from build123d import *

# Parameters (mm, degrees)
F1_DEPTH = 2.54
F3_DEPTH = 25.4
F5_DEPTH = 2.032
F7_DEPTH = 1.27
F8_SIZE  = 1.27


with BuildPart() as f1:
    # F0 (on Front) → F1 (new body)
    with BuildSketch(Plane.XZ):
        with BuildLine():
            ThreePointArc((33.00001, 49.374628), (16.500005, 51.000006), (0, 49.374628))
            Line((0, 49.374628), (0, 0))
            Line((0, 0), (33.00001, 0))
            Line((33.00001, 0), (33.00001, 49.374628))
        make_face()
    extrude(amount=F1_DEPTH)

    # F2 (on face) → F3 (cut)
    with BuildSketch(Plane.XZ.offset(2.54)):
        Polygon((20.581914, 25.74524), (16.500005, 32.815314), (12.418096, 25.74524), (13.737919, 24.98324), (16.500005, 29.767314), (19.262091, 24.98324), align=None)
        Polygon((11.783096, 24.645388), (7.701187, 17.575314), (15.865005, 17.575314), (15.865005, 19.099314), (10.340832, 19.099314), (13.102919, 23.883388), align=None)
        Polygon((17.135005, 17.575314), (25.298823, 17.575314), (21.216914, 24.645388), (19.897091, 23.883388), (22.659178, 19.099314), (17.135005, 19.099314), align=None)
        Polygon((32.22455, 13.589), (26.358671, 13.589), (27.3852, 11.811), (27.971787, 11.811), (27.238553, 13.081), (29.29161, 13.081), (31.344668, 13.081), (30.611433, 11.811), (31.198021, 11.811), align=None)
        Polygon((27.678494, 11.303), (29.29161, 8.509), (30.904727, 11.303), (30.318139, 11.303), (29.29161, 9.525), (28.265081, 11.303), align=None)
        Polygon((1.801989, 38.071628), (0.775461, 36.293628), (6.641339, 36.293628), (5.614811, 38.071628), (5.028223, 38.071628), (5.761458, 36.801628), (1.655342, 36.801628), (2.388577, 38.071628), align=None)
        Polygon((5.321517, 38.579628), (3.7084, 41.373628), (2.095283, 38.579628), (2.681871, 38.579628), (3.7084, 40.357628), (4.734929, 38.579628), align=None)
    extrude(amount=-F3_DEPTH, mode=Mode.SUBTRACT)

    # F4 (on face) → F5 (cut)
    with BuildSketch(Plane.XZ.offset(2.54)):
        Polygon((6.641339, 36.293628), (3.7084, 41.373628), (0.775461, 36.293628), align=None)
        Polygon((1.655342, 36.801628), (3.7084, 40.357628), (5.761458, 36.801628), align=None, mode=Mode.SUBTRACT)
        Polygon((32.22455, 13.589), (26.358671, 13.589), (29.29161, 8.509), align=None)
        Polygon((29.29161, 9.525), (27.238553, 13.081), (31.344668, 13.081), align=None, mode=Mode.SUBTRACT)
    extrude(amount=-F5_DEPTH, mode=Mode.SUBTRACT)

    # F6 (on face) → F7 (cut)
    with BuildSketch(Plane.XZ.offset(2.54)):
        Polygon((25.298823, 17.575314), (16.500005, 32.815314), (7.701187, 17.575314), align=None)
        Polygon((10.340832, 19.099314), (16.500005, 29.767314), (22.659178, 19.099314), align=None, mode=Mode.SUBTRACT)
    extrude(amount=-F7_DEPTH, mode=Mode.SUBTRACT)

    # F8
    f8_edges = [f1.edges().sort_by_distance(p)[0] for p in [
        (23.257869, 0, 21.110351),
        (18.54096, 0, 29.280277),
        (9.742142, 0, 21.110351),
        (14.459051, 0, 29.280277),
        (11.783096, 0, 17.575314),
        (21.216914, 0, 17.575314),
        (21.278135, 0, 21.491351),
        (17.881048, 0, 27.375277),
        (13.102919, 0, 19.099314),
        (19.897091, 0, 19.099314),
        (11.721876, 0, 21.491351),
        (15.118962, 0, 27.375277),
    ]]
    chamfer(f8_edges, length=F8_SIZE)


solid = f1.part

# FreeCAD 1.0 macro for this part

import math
import FreeCAD as App
import Part
import Sketcher

V = App.Vector
Q = App.Units.Quantity


def edges_at(feature, points):
    """Names of the edges that pass closest to the given points."""
    edges = feature.Shape.Edges
    near = lambda p: min(range(len(edges)), key=lambda i: edges[i].distToShape(Part.Vertex(*p))[0])
    return sorted({f"Edge{near(p) + 1}" for p in points})


def add_polygon(sketch, points):
    """Adds a closed chain of lines whose ends are joined by coincident constraints."""
    first, n = sketch.GeometryCount, len(points)
    for a, b in zip(points, points[1:] + points[:1]):
        sketch.addGeometry(Part.LineSegment(App.Vector(*a, 0), App.Vector(*b, 0)), False)
    for i in range(n):
        sketch.addConstraint(Sketcher.Constraint("Coincident", first + i, 2, first + (i + 1) % n, 1))

doc = App.newDocument("Part")
body = doc.addObject("PartDesign::Body", "Body")

# Sketch on XZ plane
sketch1 = body.newObject("Sketcher::SketchObject", "Sketch")
sketch1.AttachmentSupport = (doc.getObject("XZ_Plane"), [""])
sketch1.MapMode = "FlatFace"
sketch1.addGeometry(Part.ArcOfCircle(Part.Circle(V(17, -34, 0), V(0, 0, 1), 85), math.radians(79), math.radians(101)), False)
sketch1.addGeometry(Part.LineSegment(V(0, 49, 0), V(0, 0, 0)), False)
sketch1.addGeometry(Part.LineSegment(V(0, 0, 0), V(33, 0, 0)), False)
sketch1.addGeometry(Part.LineSegment(V(33, 0, 0), V(33, 49, 0)), False)
sketch1.addConstraint(Sketcher.Constraint("Coincident", 0, 2, 1, 1))
sketch1.addConstraint(Sketcher.Constraint("Coincident", 1, 2, 2, 1))
sketch1.addConstraint(Sketcher.Constraint("Coincident", 2, 2, 3, 1))
sketch1.addConstraint(Sketcher.Constraint("Coincident", 3, 2, 0, 1))
sketch1.addConstraint(Sketcher.Constraint("Vertical", 1))
sketch1.addConstraint(Sketcher.Constraint("Horizontal", 2))
sketch1.addConstraint(Sketcher.Constraint("Vertical", 3))
sketch1.addConstraint(Sketcher.Constraint("Coincident", 1, 2, -1, 1))
sketch1.addConstraint(Sketcher.Constraint("Horizontal", 0, 2, 3, 2))
sketch1.addConstraint(Sketcher.Constraint("Radius", 0, 84.562489))
sketch1.addConstraint(Sketcher.Constraint("DistanceX", 2, 1, 2, 2, 33.00001))
sketch1.addConstraint(Sketcher.Constraint("DistanceY", 1, 2, 1, 1, 49.374628))
pad1 = body.newObject("PartDesign::Pad", "Pad")
pad1.Profile = sketch1
pad1.Length = Q("0.1 in")

# Sketch on XZ plane
sketch2 = body.newObject("Sketcher::SketchObject", "Sketch001")
sketch2.AttachmentSupport = (doc.getObject("XZ_Plane"), [""])
sketch2.MapMode = "FlatFace"
sketch2.AttachmentOffset = App.Placement(V(0, 0, 0.1 * 25.4), App.Rotation())
add_polygon(sketch2, [(20.6, 25.7), (16.5, 32.8), (12.4, 25.7), (13.7, 25), (16.5, 29.8), (19.3, 25)])  # lines 0-5
add_polygon(sketch2, [(11.8, 24.6), (7.7, 17.6), (15.9, 17.6), (15.9, 19.1), (10.3, 19.1), (13.1, 23.9)])  # lines 6-11
add_polygon(sketch2, [(17.1, 17.6), (25.3, 17.6), (21.2, 24.6), (19.9, 23.9), (22.7, 19.1), (17.1, 19.1)])  # lines 12-17
add_polygon(sketch2, [(32.2, 13.6), (26.4, 13.6), (27.4, 11.8), (28, 11.8), (27.2, 13.1), (31.3, 13.1), (30.6, 11.8), (31.2, 11.8)])  # lines 18-25
add_polygon(sketch2, [(27.7, 11.3), (29.3, 8.5), (30.9, 11.3), (30.3, 11.3), (29.3, 9.5), (28.3, 11.3)])  # lines 26-31
add_polygon(sketch2, [(1.8, 38.1), (0.8, 36.3), (6.6, 36.3), (5.6, 38.1), (5, 38.1), (5.8, 36.8), (1.7, 36.8), (2.4, 38.1)])  # lines 32-39
add_polygon(sketch2, [(5.3, 38.6), (3.7, 41.4), (2.1, 38.6), (2.7, 38.6), (3.7, 40.4), (4.7, 38.6)])  # lines 40-45
sketch2.addConstraint(Sketcher.Constraint("Horizontal", 7))
sketch2.addConstraint(Sketcher.Constraint("Vertical", 8))
sketch2.addConstraint(Sketcher.Constraint("Horizontal", 9))
sketch2.addConstraint(Sketcher.Constraint("Horizontal", 12))
sketch2.addConstraint(Sketcher.Constraint("Horizontal", 16))
sketch2.addConstraint(Sketcher.Constraint("Vertical", 17))
sketch2.addConstraint(Sketcher.Constraint("Horizontal", 18))
sketch2.addConstraint(Sketcher.Constraint("Horizontal", 20))
sketch2.addConstraint(Sketcher.Constraint("Horizontal", 22))
sketch2.addConstraint(Sketcher.Constraint("Horizontal", 24))
sketch2.addConstraint(Sketcher.Constraint("Horizontal", 28))
sketch2.addConstraint(Sketcher.Constraint("Horizontal", 31))
sketch2.addConstraint(Sketcher.Constraint("Horizontal", 33))
sketch2.addConstraint(Sketcher.Constraint("Horizontal", 35))
sketch2.addConstraint(Sketcher.Constraint("Horizontal", 37))
sketch2.addConstraint(Sketcher.Constraint("Horizontal", 39))
sketch2.addConstraint(Sketcher.Constraint("Horizontal", 42))
sketch2.addConstraint(Sketcher.Constraint("Horizontal", 45))
sketch2.addConstraint(Sketcher.Constraint("Perpendicular", 1, 2))
sketch2.addConstraint(Sketcher.Constraint("Perpendicular", 2, 3))
sketch2.addConstraint(Sketcher.Constraint("Parallel", 0, 4))
sketch2.addConstraint(Sketcher.Constraint("Perpendicular", 4, 5))
sketch2.addConstraint(Sketcher.Constraint("Parallel", 3, 6))
sketch2.addConstraint(Sketcher.Constraint("Parallel", 6, 10))
sketch2.addConstraint(Sketcher.Constraint("Perpendicular", 10, 11))
sketch2.addConstraint(Sketcher.Constraint("Perpendicular", 5, 13))
sketch2.addConstraint(Sketcher.Constraint("Perpendicular", 13, 14))
sketch2.addConstraint(Sketcher.Constraint("Perpendicular", 14, 15))
sketch2.addConstraint(Sketcher.Constraint("Parallel", 15, 19))
sketch2.addConstraint(Sketcher.Constraint("Parallel", 19, 21))
sketch2.addConstraint(Sketcher.Constraint("Perpendicular", 11, 23))
sketch2.addConstraint(Sketcher.Constraint("Parallel", 23, 25))
sketch2.addConstraint(Sketcher.Constraint("Parallel", 21, 26))
sketch2.addConstraint(Sketcher.Constraint("Parallel", 25, 27))
sketch2.addConstraint(Sketcher.Constraint("Parallel", 27, 29))
sketch2.addConstraint(Sketcher.Constraint("Parallel", 26, 30))
sketch2.addConstraint(Sketcher.Constraint("Parallel", 29, 32))
sketch2.addConstraint(Sketcher.Constraint("Parallel", 30, 34))
sketch2.addConstraint(Sketcher.Constraint("Parallel", 34, 36))
sketch2.addConstraint(Sketcher.Constraint("Parallel", 32, 38))
sketch2.addConstraint(Sketcher.Constraint("Parallel", 36, 40))
sketch2.addConstraint(Sketcher.Constraint("Parallel", 38, 41))
sketch2.addConstraint(Sketcher.Constraint("Parallel", 41, 43))
sketch2.addConstraint(Sketcher.Constraint("Parallel", 40, 44))
sketch2.addConstraint(Sketcher.Constraint("Horizontal", 2, 2, 4, 2))
sketch2.addConstraint(Sketcher.Constraint("Horizontal", 1, 2, 5, 2))
sketch2.addConstraint(Sketcher.Constraint("Horizontal", 7, 2, 12, 2))
sketch2.addConstraint(Sketcher.Constraint("Horizontal", 11, 2, 13, 2))
sketch2.addConstraint(Sketcher.Constraint("Horizontal", 10, 2, 14, 2))
sketch2.addConstraint(Sketcher.Constraint("Horizontal", 9, 2, 15, 2))
sketch2.addConstraint(Sketcher.Constraint("Horizontal", 20, 2, 23, 2))
sketch2.addConstraint(Sketcher.Constraint("Horizontal", 28, 2, 30, 2))
sketch2.addConstraint(Sketcher.Constraint("Horizontal", 35, 2, 38, 2))
sketch2.addConstraint(Sketcher.Constraint("Horizontal", 42, 2, 44, 2))
sketch2.addConstraint(Sketcher.Constraint("Vertical", 0, 2, 3, 2))
sketch2.addConstraint(Sketcher.Constraint("Vertical", 26, 2, 29, 2))
sketch2.addConstraint(Sketcher.Constraint("Vertical", 40, 2, 43, 2))
sketch2.addConstraint(Sketcher.Constraint("Equal", 7, 12))
sketch2.addConstraint(Sketcher.Constraint("Equal", 20, 24))
sketch2.addConstraint(Sketcher.Constraint("Equal", 24, 28))
sketch2.addConstraint(Sketcher.Constraint("Equal", 18, 33))
sketch2.addConstraint(Sketcher.Constraint("Equal", 31, 35))
sketch2.addConstraint(Sketcher.Constraint("Equal", 22, 37))
sketch2.addConstraint(Sketcher.Constraint("Equal", 35, 39))
sketch2.addConstraint(Sketcher.Constraint("Equal", 39, 42))
sketch2.addConstraint(Sketcher.Constraint("Equal", 1, 6))
sketch2.addConstraint(Sketcher.Constraint("Equal", 4, 10))
sketch2.addConstraint(Sketcher.Constraint("Equal", 5, 11))
sketch2.addConstraint(Sketcher.Constraint("Equal", 25, 29))
sketch2.addConstraint(Sketcher.Constraint("Equal", 30, 32))
sketch2.addConstraint(Sketcher.Constraint("Equal", 27, 40))
sketch2.addConstraint(Sketcher.Constraint("Angle", 0, Q("119.999999 deg")))
sketch2.addConstraint(Sketcher.Constraint("DistanceY", 8, 1, 8, 2, Q("0.06 in")))
sketch2.addConstraint(Sketcher.Constraint("DistanceY", 6, 2, 3, 2, Q("0.48 in")))
sketch2.addConstraint(Sketcher.Constraint("DistanceX", 8, 2, 16, 2, Q("0.05 in")))
sketch2.addConstraint(Sketcher.Constraint("DistanceY", 19, 2, 18, 2, Q("0.07 in")))
sketch2.addConstraint(Sketcher.Constraint("DistanceY", 21, 2, 18, 2, Q("0.02 in")))
sketch2.addConstraint(Sketcher.Constraint("DistanceY", 26, 2, 20, 2, Q("0.13 in")))
sketch2.addConstraint(Sketcher.Constraint("DistanceY", 27, 2, 23, 2, Q("0.02 in")))
sketch2.addConstraint(Sketcher.Constraint("DistanceY", 35, 2, 40, 2, Q("0.13 in")))
sketch2.addConstraint(Sketcher.Constraint("DistanceY", -1, 1, 18, 2, Q("0.535 in")))
sketch2.addConstraint(Sketcher.Constraint("DistanceX", -1, 1, 40, 2, Q("0.146 in")))
sketch2.addConstraint(Sketcher.Constraint("DistanceX", 10, 2, 2, 2, Q("0.025 in")))
sketch2.addConstraint(Sketcher.Constraint("DistanceX", 5, 2, 13, 2, Q("0.025 in")))
sketch2.addConstraint(Sketcher.Constraint("DistanceX", 18, 2, 18, 1, 5.865879))
sketch2.addConstraint(Sketcher.Constraint("DistanceX", -1, 1, 19, 2, 27.3852))
sketch2.addConstraint(Sketcher.Constraint("Distance", 0, 8.163818))
sketch2.addConstraint(Sketcher.Constraint("DistanceY", -1, 1, 1, 2, 25.74524))
sketch2.addConstraint(Sketcher.Constraint("DistanceX", -1, 1, 2, 2, 13.737919))
sketch2.addConstraint(Sketcher.Constraint("DistanceX", -1, 1, 26, 2, 29.29161))
sketch2.addConstraint(Sketcher.Constraint("DistanceX", -1, 1, 32, 2, 0.775461))
sketch2.addConstraint(Sketcher.Constraint("DistanceY", 11, 2, 32, 2, 11.64824))
pocket1 = body.newObject("PartDesign::Pocket", "Pocket")
pocket1.Profile = sketch2
pocket1.Length = Q("1 in")

# Sketch on XZ plane
sketch3 = body.newObject("Sketcher::SketchObject", "Sketch002")
sketch3.AttachmentSupport = (doc.getObject("XZ_Plane"), [""])
sketch3.MapMode = "FlatFace"
sketch3.AttachmentOffset = App.Placement(V(0, 0, 0.1 * 25.4), App.Rotation())
add_polygon(sketch3, [(6.6, 36.3), (3.7, 41.4), (0.8, 36.3)])  # lines 0-2
add_polygon(sketch3, [(5.8, 36.8), (1.7, 36.8), (3.7, 40.4)])  # lines 3-5
add_polygon(sketch3, [(32.2, 13.6), (26.4, 13.6), (29.3, 8.5)])  # lines 6-8
add_polygon(sketch3, [(31.3, 13.1), (29.3, 9.5), (27.2, 13.1)])  # lines 9-11
sketch3.addConstraint(Sketcher.Constraint("Horizontal", 2))
sketch3.addConstraint(Sketcher.Constraint("Horizontal", 3))
sketch3.addConstraint(Sketcher.Constraint("Horizontal", 6))
sketch3.addConstraint(Sketcher.Constraint("Horizontal", 11))
sketch3.addConstraint(Sketcher.Constraint("Parallel", 1, 4))
sketch3.addConstraint(Sketcher.Constraint("Parallel", 0, 5))
sketch3.addConstraint(Sketcher.Constraint("Parallel", 5, 7))
sketch3.addConstraint(Sketcher.Constraint("Parallel", 4, 8))
sketch3.addConstraint(Sketcher.Constraint("Parallel", 8, 9))
sketch3.addConstraint(Sketcher.Constraint("Parallel", 7, 10))
sketch3.addConstraint(Sketcher.Constraint("Vertical", 0, 2, 4, 2))
sketch3.addConstraint(Sketcher.Constraint("Vertical", 7, 2, 9, 2))
sketch3.addConstraint(Sketcher.Constraint("Equal", 2, 6))
sketch3.addConstraint(Sketcher.Constraint("Equal", 3, 11))
sketch3.addConstraint(Sketcher.Constraint("Equal", 0, 1))
sketch3.addConstraint(Sketcher.Constraint("Angle", 0, Q("119.999997 deg")))
sketch3.addConstraint(Sketcher.Constraint("DistanceY", 1, 2, 0, 2, Q("0.2 in")))
sketch3.addConstraint(Sketcher.Constraint("DistanceY", 1, 2, 3, 2, Q("0.02 in")))
sketch3.addConstraint(Sketcher.Constraint("DistanceY", 4, 2, 0, 2, Q("0.04 in")))
sketch3.addConstraint(Sketcher.Constraint("DistanceY", 7, 2, 9, 2, Q("0.04 in")))
sketch3.addConstraint(Sketcher.Constraint("DistanceX", -1, 1, 0, 2, Q("0.146 in")))
sketch3.addConstraint(Sketcher.Constraint("DistanceY", -1, 1, 6, 2, Q("0.535 in")))
sketch3.addConstraint(Sketcher.Constraint("DistanceX", -1, 1, 6, 2, 26.358671))
sketch3.addConstraint(Sketcher.Constraint("DistanceY", 6, 2, 5, 2, 23.212628))
pocket2 = body.newObject("PartDesign::Pocket", "Pocket001")
pocket2.Profile = sketch3
pocket2.Length = Q("0.08 in")

# Sketch on XZ plane
sketch4 = body.newObject("Sketcher::SketchObject", "Sketch003")
sketch4.AttachmentSupport = (doc.getObject("XZ_Plane"), [""])
sketch4.MapMode = "FlatFace"
sketch4.AttachmentOffset = App.Placement(V(0, 0, 0.1 * 25.4), App.Rotation())
add_polygon(sketch4, [(25, 18), (17, 33), (8, 18)])  # lines 0-2
add_polygon(sketch4, [(23, 19), (10, 19), (17, 30)])  # lines 3-5
sketch4.addConstraint(Sketcher.Constraint("Horizontal", 2))
sketch4.addConstraint(Sketcher.Constraint("Horizontal", 3))
sketch4.addConstraint(Sketcher.Constraint("Parallel", 1, 4))
sketch4.addConstraint(Sketcher.Constraint("Parallel", 0, 5))
sketch4.addConstraint(Sketcher.Constraint("Vertical", 0, 2, 4, 2))
sketch4.addConstraint(Sketcher.Constraint("Equal", 0, 1))
sketch4.addConstraint(Sketcher.Constraint("Angle", 0, Q("120 deg")))
sketch4.addConstraint(Sketcher.Constraint("DistanceY", 1, 2, 0, 2, Q("0.6 in")))
sketch4.addConstraint(Sketcher.Constraint("DistanceY", 1, 2, 3, 2, Q("0.06 in")))
sketch4.addConstraint(Sketcher.Constraint("DistanceY", 4, 2, 0, 2, Q("0.12 in")))
sketch4.addConstraint(Sketcher.Constraint("DistanceX", -1, 1, 5, 2, 22.659178))
sketch4.addConstraint(Sketcher.Constraint("DistanceY", -1, 1, 0, 2, 32.815314))
pocket3 = body.newObject("PartDesign::Pocket", "Pocket002")
pocket3.Profile = sketch4
pocket3.Length = Q("0.05 in")
doc.recompute()

chamfer = body.newObject("PartDesign::Chamfer", "Chamfer")
chamfer.Base = (pocket3, edges_at(pocket3, [
    (23.258, 0, 21.11),
    (18.541, 0, 29.28),
    (9.742, 0, 21.11),
    (14.459, 0, 29.28),
    (11.783, 0, 17.575),
    (21.217, 0, 17.575),
    (21.278, 0, 21.491),
    (17.881, 0, 27.375),
    (13.103, 0, 19.099),
    (19.897, 0, 19.099),
    (11.722, 0, 21.491),
    (15.119, 0, 27.375),
]))
chamfer.Size = Q("0.05 in")

doc.recompute()
